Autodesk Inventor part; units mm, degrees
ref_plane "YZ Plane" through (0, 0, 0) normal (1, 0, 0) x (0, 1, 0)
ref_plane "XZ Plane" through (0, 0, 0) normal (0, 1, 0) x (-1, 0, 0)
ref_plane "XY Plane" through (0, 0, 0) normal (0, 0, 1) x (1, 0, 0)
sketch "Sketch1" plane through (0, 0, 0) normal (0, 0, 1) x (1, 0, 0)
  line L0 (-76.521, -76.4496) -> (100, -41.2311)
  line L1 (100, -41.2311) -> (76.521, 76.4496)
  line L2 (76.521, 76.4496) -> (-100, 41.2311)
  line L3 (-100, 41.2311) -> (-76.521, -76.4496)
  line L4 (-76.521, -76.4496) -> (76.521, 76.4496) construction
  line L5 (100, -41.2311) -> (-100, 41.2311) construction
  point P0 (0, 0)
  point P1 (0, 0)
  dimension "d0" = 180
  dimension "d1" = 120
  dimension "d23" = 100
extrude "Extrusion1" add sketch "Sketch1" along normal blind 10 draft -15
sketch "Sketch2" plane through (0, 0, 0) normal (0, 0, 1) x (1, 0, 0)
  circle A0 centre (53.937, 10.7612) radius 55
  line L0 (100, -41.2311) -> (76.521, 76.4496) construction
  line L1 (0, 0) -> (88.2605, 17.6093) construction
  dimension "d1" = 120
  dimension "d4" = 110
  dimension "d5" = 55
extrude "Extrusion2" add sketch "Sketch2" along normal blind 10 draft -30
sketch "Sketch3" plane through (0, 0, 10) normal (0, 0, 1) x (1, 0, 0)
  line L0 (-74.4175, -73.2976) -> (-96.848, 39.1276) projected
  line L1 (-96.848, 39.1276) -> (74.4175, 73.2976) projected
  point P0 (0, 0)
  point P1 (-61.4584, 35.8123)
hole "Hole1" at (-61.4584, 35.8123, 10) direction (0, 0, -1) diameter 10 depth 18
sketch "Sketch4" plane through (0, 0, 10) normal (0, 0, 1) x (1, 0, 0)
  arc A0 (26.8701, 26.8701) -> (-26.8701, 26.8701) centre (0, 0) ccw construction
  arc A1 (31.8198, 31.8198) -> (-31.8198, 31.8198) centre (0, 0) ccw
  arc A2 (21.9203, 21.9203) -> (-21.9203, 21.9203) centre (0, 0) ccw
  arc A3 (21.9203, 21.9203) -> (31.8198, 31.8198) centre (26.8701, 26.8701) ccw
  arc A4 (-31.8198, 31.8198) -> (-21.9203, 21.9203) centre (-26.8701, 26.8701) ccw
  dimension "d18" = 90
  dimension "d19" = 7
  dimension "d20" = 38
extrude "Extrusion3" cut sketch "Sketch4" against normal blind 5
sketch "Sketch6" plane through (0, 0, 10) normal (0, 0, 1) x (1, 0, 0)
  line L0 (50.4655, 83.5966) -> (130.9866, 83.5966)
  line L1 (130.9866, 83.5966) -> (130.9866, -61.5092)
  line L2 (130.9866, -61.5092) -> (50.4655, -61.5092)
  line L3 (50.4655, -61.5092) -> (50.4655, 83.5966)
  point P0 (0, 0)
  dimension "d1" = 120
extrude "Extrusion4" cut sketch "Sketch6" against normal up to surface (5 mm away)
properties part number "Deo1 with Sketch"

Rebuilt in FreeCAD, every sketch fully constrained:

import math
import FreeCAD as App
import Part
import Sketcher

doc = App.newDocument("Part")
params = doc.addObject("Spreadsheet::Sheet", "Params")
for row, (alias, value) in enumerate([
    ("sketch1_length", "120 mm"),
    ("sketch1_length2", "180 mm"),
    ("pad1_length", "10 mm"),
    ("pad1_taper", "-15 deg"),
    ("sketch2_diameter", "110 mm"),
    ("pad2_length", "10 mm"),
    ("pad2_taper", "-30 deg"),
    ("sketch3_diameter", "10 mm"),
    ("hole_diameter", "10 mm"),
    ("hole_depth", "18 mm"),
    ("sketch4_radius", "7 mm"),
    ("sketch4_radius2", "45 mm"),
    ("pocket1_length", "5 mm"),
    ("pocket2_length", "5 mm"),
], start=1):
    params.set(f"A{row}", alias)
    params.set(f"B{row}", "=" + value)
    params.setAlias(f"B{row}", alias)

body = doc.addObject("PartDesign::Body", "Body")

# Sketch on XY plane
sketch1 = doc.addObject("Sketcher::SketchObject", "Sketch")
body.addObject(sketch1)
sketch1.AttachmentSupport = (doc.XY_Plane, [""])
sketch1.MapMode = "FlatFace"
sketch1.addGeometry([
    Part.LineSegment(App.Vector(-100, 41.2311, 0), App.Vector(-76.521, -76.4496, 0)),
    Part.LineSegment(App.Vector(-76.521, -76.4496, 0), App.Vector(100, -41.2311, 0)),
    Part.LineSegment(App.Vector(100, -41.2311, 0), App.Vector(76.521, 76.4496, 0)),
    Part.LineSegment(App.Vector(76.521, 76.4496, 0), App.Vector(-100, 41.2311, 0)),
], False)
sketch1.addConstraint([
    Sketcher.Constraint("Coincident", 0, 2, 1, 1),
    Sketcher.Constraint("Coincident", 1, 2, 2, 1),
    Sketcher.Constraint("Coincident", 2, 2, 3, 1),
    Sketcher.Constraint("Coincident", 3, 2, 0, 1),
    Sketcher.Constraint("Symmetric", 0, 2, 2, 2, -1, 1),
    Sketcher.Constraint("Symmetric", 1, 2, 3, 2, -1, 1),
    Sketcher.Constraint("Perpendicular", 0, 1),
    Sketcher.Constraint("Distance", 0, 120.0),
    Sketcher.Constraint("Distance", 1, 180.0),
    Sketcher.Constraint("DistanceX", -1, 1, 1, 2, 100.0),
])
sketch1.setExpression("Constraints[7]", "Params.sketch1_length")
sketch1.setExpression("Constraints[8]", "Params.sketch1_length2")
pad1 = doc.addObject("PartDesign::Pad", "Pad")
body.addObject(pad1)
pad1.Profile = sketch1
pad1.setExpression("Length", "Params.pad1_length")
pad1.setExpression("TaperAngle", "Params.pad1_taper")

# Sketch on XY plane
sketch2 = doc.addObject("Sketcher::SketchObject", "Sketch001")
body.addObject(sketch2)
sketch2.AttachmentSupport = (doc.XY_Plane, [""])
sketch2.MapMode = "FlatFace"
sketch2.addGeometry(Part.Circle(App.Vector(53.937, 10.7612, 0), App.Vector(0, 0, 1), 55), False)
sketch2.addConstraint([
    Sketcher.Constraint("Diameter", 0, 110.0),
    Sketcher.Constraint("DistanceX", -1, 1, 0, 3, 53.937),
    Sketcher.Constraint("DistanceY", -1, 1, 0, 3, 10.7612),
])
sketch2.setExpression("Constraints[0]", "Params.sketch2_diameter")
pad2 = doc.addObject("PartDesign::Pad", "Pad001")
body.addObject(pad2)
pad2.Profile = sketch2
pad2.setExpression("Length", "Params.pad2_length")
pad2.setExpression("TaperAngle", "Params.pad2_taper")

# Sketch on XY plane
sketch3 = doc.addObject("Sketcher::SketchObject", "Sketch002")
body.addObject(sketch3)
sketch3.AttachmentSupport = (doc.XY_Plane, [""])
sketch3.MapMode = "FlatFace"
sketch3.AttachmentOffset = App.Placement(App.Vector(0, 0, 10), App.Rotation())
sketch3.addGeometry(Part.Circle(App.Vector(-61.4584, 35.8123, 0), App.Vector(0, 0, 1), 5), False)
sketch3.addConstraint([
    Sketcher.Constraint("Diameter", 0, 10.0),
    Sketcher.Constraint("DistanceX", 0, 3, -1, 1, 61.4584),
    Sketcher.Constraint("DistanceY", -1, 1, 0, 3, 35.8123),
])
sketch3.setExpression("Constraints[0]", "Params.sketch3_diameter")
doc.recompute()
hole = doc.addObject("PartDesign::Hole", "Hole")
body.addObject(hole)
hole.Profile = sketch3
hole.ThreadType = "None"
hole.setExpression("Diameter", "Params.hole_diameter")
hole.DepthType = "Dimension"
hole.setExpression("Depth", "Params.hole_depth")
hole.DrillPoint = "Flat"

# Sketch on XY plane
sketch4 = doc.addObject("Sketcher::SketchObject", "Sketch003")
body.addObject(sketch4)
sketch4.AttachmentSupport = (doc.XY_Plane, [""])
sketch4.MapMode = "FlatFace"
sketch4.AttachmentOffset = App.Placement(App.Vector(0, 0, 10), App.Rotation())
sketch4.addGeometry([
    Part.ArcOfCircle(Part.Circle(App.Vector(26.8701, 26.8701, 0), App.Vector(0, 0, 1), 7.000074), math.radians(-135), math.radians(45)),
    Part.ArcOfCircle(Part.Circle(App.Vector(0, 0, 0), App.Vector(0, 0, 1), 44.999993), math.radians(45), math.radians(135)),
    Part.ArcOfCircle(Part.Circle(App.Vector(-26.8701, 26.8701, 0), App.Vector(0, 0, 1), 6.999933), math.radians(135), math.radians(315)),
    Part.ArcOfCircle(Part.Circle(App.Vector(0, 0, 0), App.Vector(0, 0, 1), 30.999986), math.radians(45), math.radians(135)),
], False)
sketch4.addConstraint([
    Sketcher.Constraint("Tangent", 0, 2, 1, 1),
    Sketcher.Constraint("Tangent", 1, 2, 2, 1),
    Sketcher.Constraint("Tangent", 2, 2, 3, 2),
    Sketcher.Constraint("Tangent", 3, 1, 0, 1),
    Sketcher.Constraint("Coincident", 1, 3, -1, 1),
    Sketcher.Constraint("Coincident", 3, 3, -1, 1),
    Sketcher.Constraint("Horizontal", 0, 3, 2, 3),
    Sketcher.Constraint("Radius", 0, 7.0),
    Sketcher.Constraint("Radius", 1, 45.0),
    Sketcher.Constraint("DistanceX", -1, 1, 0, 3, 26.87),
])
sketch4.setExpression("Constraints[7]", "Params.sketch4_radius")
sketch4.setExpression("Constraints[8]", "Params.sketch4_radius2")
pocket1 = doc.addObject("PartDesign::Pocket", "Pocket")
body.addObject(pocket1)
pocket1.Profile = sketch4
pocket1.setExpression("Length", "Params.pocket1_length")

# Sketch on XY plane
sketch5 = doc.addObject("Sketcher::SketchObject", "Sketch004")
body.addObject(sketch5)
sketch5.AttachmentSupport = (doc.XY_Plane, [""])
sketch5.MapMode = "FlatFace"
sketch5.AttachmentOffset = App.Placement(App.Vector(0, 0, 10), App.Rotation())
sketch5.addGeometry([
    Part.LineSegment(App.Vector(130.9866, 83.5966, 0), App.Vector(50.4655, 83.5966, 0)),
    Part.LineSegment(App.Vector(50.4655, 83.5966, 0), App.Vector(50.4655, -61.5092, 0)),
    Part.LineSegment(App.Vector(50.4655, -61.5092, 0), App.Vector(130.9866, -61.5092, 0)),
    Part.LineSegment(App.Vector(130.9866, -61.5092, 0), App.Vector(130.9866, 83.5966, 0)),
], False)
sketch5.addConstraint([
    Sketcher.Constraint("Coincident", 0, 2, 1, 1),
    Sketcher.Constraint("Coincident", 1, 2, 2, 1),
    Sketcher.Constraint("Coincident", 2, 2, 3, 1),
    Sketcher.Constraint("Coincident", 3, 2, 0, 1),
    Sketcher.Constraint("Horizontal", 0),
    Sketcher.Constraint("Vertical", 1),
    Sketcher.Constraint("Horizontal", 2),
    Sketcher.Constraint("Vertical", 3),
    Sketcher.Constraint("DistanceX", 0, 2, 0, 1, 80.521),
    Sketcher.Constraint("DistanceY", 1, 2, 1, 1, 145.1058),
    Sketcher.Constraint("DistanceX", -1, 1, 0, 2, 50.4655),
    Sketcher.Constraint("DistanceY", -1, 1, 0, 2, 83.5966),
])
pocket2 = doc.addObject("PartDesign::Pocket", "Pocket001")
body.addObject(pocket2)
pocket2.Profile = sketch5
pocket2.setExpression("Length", "Params.pocket2_length")

doc.recompute()
